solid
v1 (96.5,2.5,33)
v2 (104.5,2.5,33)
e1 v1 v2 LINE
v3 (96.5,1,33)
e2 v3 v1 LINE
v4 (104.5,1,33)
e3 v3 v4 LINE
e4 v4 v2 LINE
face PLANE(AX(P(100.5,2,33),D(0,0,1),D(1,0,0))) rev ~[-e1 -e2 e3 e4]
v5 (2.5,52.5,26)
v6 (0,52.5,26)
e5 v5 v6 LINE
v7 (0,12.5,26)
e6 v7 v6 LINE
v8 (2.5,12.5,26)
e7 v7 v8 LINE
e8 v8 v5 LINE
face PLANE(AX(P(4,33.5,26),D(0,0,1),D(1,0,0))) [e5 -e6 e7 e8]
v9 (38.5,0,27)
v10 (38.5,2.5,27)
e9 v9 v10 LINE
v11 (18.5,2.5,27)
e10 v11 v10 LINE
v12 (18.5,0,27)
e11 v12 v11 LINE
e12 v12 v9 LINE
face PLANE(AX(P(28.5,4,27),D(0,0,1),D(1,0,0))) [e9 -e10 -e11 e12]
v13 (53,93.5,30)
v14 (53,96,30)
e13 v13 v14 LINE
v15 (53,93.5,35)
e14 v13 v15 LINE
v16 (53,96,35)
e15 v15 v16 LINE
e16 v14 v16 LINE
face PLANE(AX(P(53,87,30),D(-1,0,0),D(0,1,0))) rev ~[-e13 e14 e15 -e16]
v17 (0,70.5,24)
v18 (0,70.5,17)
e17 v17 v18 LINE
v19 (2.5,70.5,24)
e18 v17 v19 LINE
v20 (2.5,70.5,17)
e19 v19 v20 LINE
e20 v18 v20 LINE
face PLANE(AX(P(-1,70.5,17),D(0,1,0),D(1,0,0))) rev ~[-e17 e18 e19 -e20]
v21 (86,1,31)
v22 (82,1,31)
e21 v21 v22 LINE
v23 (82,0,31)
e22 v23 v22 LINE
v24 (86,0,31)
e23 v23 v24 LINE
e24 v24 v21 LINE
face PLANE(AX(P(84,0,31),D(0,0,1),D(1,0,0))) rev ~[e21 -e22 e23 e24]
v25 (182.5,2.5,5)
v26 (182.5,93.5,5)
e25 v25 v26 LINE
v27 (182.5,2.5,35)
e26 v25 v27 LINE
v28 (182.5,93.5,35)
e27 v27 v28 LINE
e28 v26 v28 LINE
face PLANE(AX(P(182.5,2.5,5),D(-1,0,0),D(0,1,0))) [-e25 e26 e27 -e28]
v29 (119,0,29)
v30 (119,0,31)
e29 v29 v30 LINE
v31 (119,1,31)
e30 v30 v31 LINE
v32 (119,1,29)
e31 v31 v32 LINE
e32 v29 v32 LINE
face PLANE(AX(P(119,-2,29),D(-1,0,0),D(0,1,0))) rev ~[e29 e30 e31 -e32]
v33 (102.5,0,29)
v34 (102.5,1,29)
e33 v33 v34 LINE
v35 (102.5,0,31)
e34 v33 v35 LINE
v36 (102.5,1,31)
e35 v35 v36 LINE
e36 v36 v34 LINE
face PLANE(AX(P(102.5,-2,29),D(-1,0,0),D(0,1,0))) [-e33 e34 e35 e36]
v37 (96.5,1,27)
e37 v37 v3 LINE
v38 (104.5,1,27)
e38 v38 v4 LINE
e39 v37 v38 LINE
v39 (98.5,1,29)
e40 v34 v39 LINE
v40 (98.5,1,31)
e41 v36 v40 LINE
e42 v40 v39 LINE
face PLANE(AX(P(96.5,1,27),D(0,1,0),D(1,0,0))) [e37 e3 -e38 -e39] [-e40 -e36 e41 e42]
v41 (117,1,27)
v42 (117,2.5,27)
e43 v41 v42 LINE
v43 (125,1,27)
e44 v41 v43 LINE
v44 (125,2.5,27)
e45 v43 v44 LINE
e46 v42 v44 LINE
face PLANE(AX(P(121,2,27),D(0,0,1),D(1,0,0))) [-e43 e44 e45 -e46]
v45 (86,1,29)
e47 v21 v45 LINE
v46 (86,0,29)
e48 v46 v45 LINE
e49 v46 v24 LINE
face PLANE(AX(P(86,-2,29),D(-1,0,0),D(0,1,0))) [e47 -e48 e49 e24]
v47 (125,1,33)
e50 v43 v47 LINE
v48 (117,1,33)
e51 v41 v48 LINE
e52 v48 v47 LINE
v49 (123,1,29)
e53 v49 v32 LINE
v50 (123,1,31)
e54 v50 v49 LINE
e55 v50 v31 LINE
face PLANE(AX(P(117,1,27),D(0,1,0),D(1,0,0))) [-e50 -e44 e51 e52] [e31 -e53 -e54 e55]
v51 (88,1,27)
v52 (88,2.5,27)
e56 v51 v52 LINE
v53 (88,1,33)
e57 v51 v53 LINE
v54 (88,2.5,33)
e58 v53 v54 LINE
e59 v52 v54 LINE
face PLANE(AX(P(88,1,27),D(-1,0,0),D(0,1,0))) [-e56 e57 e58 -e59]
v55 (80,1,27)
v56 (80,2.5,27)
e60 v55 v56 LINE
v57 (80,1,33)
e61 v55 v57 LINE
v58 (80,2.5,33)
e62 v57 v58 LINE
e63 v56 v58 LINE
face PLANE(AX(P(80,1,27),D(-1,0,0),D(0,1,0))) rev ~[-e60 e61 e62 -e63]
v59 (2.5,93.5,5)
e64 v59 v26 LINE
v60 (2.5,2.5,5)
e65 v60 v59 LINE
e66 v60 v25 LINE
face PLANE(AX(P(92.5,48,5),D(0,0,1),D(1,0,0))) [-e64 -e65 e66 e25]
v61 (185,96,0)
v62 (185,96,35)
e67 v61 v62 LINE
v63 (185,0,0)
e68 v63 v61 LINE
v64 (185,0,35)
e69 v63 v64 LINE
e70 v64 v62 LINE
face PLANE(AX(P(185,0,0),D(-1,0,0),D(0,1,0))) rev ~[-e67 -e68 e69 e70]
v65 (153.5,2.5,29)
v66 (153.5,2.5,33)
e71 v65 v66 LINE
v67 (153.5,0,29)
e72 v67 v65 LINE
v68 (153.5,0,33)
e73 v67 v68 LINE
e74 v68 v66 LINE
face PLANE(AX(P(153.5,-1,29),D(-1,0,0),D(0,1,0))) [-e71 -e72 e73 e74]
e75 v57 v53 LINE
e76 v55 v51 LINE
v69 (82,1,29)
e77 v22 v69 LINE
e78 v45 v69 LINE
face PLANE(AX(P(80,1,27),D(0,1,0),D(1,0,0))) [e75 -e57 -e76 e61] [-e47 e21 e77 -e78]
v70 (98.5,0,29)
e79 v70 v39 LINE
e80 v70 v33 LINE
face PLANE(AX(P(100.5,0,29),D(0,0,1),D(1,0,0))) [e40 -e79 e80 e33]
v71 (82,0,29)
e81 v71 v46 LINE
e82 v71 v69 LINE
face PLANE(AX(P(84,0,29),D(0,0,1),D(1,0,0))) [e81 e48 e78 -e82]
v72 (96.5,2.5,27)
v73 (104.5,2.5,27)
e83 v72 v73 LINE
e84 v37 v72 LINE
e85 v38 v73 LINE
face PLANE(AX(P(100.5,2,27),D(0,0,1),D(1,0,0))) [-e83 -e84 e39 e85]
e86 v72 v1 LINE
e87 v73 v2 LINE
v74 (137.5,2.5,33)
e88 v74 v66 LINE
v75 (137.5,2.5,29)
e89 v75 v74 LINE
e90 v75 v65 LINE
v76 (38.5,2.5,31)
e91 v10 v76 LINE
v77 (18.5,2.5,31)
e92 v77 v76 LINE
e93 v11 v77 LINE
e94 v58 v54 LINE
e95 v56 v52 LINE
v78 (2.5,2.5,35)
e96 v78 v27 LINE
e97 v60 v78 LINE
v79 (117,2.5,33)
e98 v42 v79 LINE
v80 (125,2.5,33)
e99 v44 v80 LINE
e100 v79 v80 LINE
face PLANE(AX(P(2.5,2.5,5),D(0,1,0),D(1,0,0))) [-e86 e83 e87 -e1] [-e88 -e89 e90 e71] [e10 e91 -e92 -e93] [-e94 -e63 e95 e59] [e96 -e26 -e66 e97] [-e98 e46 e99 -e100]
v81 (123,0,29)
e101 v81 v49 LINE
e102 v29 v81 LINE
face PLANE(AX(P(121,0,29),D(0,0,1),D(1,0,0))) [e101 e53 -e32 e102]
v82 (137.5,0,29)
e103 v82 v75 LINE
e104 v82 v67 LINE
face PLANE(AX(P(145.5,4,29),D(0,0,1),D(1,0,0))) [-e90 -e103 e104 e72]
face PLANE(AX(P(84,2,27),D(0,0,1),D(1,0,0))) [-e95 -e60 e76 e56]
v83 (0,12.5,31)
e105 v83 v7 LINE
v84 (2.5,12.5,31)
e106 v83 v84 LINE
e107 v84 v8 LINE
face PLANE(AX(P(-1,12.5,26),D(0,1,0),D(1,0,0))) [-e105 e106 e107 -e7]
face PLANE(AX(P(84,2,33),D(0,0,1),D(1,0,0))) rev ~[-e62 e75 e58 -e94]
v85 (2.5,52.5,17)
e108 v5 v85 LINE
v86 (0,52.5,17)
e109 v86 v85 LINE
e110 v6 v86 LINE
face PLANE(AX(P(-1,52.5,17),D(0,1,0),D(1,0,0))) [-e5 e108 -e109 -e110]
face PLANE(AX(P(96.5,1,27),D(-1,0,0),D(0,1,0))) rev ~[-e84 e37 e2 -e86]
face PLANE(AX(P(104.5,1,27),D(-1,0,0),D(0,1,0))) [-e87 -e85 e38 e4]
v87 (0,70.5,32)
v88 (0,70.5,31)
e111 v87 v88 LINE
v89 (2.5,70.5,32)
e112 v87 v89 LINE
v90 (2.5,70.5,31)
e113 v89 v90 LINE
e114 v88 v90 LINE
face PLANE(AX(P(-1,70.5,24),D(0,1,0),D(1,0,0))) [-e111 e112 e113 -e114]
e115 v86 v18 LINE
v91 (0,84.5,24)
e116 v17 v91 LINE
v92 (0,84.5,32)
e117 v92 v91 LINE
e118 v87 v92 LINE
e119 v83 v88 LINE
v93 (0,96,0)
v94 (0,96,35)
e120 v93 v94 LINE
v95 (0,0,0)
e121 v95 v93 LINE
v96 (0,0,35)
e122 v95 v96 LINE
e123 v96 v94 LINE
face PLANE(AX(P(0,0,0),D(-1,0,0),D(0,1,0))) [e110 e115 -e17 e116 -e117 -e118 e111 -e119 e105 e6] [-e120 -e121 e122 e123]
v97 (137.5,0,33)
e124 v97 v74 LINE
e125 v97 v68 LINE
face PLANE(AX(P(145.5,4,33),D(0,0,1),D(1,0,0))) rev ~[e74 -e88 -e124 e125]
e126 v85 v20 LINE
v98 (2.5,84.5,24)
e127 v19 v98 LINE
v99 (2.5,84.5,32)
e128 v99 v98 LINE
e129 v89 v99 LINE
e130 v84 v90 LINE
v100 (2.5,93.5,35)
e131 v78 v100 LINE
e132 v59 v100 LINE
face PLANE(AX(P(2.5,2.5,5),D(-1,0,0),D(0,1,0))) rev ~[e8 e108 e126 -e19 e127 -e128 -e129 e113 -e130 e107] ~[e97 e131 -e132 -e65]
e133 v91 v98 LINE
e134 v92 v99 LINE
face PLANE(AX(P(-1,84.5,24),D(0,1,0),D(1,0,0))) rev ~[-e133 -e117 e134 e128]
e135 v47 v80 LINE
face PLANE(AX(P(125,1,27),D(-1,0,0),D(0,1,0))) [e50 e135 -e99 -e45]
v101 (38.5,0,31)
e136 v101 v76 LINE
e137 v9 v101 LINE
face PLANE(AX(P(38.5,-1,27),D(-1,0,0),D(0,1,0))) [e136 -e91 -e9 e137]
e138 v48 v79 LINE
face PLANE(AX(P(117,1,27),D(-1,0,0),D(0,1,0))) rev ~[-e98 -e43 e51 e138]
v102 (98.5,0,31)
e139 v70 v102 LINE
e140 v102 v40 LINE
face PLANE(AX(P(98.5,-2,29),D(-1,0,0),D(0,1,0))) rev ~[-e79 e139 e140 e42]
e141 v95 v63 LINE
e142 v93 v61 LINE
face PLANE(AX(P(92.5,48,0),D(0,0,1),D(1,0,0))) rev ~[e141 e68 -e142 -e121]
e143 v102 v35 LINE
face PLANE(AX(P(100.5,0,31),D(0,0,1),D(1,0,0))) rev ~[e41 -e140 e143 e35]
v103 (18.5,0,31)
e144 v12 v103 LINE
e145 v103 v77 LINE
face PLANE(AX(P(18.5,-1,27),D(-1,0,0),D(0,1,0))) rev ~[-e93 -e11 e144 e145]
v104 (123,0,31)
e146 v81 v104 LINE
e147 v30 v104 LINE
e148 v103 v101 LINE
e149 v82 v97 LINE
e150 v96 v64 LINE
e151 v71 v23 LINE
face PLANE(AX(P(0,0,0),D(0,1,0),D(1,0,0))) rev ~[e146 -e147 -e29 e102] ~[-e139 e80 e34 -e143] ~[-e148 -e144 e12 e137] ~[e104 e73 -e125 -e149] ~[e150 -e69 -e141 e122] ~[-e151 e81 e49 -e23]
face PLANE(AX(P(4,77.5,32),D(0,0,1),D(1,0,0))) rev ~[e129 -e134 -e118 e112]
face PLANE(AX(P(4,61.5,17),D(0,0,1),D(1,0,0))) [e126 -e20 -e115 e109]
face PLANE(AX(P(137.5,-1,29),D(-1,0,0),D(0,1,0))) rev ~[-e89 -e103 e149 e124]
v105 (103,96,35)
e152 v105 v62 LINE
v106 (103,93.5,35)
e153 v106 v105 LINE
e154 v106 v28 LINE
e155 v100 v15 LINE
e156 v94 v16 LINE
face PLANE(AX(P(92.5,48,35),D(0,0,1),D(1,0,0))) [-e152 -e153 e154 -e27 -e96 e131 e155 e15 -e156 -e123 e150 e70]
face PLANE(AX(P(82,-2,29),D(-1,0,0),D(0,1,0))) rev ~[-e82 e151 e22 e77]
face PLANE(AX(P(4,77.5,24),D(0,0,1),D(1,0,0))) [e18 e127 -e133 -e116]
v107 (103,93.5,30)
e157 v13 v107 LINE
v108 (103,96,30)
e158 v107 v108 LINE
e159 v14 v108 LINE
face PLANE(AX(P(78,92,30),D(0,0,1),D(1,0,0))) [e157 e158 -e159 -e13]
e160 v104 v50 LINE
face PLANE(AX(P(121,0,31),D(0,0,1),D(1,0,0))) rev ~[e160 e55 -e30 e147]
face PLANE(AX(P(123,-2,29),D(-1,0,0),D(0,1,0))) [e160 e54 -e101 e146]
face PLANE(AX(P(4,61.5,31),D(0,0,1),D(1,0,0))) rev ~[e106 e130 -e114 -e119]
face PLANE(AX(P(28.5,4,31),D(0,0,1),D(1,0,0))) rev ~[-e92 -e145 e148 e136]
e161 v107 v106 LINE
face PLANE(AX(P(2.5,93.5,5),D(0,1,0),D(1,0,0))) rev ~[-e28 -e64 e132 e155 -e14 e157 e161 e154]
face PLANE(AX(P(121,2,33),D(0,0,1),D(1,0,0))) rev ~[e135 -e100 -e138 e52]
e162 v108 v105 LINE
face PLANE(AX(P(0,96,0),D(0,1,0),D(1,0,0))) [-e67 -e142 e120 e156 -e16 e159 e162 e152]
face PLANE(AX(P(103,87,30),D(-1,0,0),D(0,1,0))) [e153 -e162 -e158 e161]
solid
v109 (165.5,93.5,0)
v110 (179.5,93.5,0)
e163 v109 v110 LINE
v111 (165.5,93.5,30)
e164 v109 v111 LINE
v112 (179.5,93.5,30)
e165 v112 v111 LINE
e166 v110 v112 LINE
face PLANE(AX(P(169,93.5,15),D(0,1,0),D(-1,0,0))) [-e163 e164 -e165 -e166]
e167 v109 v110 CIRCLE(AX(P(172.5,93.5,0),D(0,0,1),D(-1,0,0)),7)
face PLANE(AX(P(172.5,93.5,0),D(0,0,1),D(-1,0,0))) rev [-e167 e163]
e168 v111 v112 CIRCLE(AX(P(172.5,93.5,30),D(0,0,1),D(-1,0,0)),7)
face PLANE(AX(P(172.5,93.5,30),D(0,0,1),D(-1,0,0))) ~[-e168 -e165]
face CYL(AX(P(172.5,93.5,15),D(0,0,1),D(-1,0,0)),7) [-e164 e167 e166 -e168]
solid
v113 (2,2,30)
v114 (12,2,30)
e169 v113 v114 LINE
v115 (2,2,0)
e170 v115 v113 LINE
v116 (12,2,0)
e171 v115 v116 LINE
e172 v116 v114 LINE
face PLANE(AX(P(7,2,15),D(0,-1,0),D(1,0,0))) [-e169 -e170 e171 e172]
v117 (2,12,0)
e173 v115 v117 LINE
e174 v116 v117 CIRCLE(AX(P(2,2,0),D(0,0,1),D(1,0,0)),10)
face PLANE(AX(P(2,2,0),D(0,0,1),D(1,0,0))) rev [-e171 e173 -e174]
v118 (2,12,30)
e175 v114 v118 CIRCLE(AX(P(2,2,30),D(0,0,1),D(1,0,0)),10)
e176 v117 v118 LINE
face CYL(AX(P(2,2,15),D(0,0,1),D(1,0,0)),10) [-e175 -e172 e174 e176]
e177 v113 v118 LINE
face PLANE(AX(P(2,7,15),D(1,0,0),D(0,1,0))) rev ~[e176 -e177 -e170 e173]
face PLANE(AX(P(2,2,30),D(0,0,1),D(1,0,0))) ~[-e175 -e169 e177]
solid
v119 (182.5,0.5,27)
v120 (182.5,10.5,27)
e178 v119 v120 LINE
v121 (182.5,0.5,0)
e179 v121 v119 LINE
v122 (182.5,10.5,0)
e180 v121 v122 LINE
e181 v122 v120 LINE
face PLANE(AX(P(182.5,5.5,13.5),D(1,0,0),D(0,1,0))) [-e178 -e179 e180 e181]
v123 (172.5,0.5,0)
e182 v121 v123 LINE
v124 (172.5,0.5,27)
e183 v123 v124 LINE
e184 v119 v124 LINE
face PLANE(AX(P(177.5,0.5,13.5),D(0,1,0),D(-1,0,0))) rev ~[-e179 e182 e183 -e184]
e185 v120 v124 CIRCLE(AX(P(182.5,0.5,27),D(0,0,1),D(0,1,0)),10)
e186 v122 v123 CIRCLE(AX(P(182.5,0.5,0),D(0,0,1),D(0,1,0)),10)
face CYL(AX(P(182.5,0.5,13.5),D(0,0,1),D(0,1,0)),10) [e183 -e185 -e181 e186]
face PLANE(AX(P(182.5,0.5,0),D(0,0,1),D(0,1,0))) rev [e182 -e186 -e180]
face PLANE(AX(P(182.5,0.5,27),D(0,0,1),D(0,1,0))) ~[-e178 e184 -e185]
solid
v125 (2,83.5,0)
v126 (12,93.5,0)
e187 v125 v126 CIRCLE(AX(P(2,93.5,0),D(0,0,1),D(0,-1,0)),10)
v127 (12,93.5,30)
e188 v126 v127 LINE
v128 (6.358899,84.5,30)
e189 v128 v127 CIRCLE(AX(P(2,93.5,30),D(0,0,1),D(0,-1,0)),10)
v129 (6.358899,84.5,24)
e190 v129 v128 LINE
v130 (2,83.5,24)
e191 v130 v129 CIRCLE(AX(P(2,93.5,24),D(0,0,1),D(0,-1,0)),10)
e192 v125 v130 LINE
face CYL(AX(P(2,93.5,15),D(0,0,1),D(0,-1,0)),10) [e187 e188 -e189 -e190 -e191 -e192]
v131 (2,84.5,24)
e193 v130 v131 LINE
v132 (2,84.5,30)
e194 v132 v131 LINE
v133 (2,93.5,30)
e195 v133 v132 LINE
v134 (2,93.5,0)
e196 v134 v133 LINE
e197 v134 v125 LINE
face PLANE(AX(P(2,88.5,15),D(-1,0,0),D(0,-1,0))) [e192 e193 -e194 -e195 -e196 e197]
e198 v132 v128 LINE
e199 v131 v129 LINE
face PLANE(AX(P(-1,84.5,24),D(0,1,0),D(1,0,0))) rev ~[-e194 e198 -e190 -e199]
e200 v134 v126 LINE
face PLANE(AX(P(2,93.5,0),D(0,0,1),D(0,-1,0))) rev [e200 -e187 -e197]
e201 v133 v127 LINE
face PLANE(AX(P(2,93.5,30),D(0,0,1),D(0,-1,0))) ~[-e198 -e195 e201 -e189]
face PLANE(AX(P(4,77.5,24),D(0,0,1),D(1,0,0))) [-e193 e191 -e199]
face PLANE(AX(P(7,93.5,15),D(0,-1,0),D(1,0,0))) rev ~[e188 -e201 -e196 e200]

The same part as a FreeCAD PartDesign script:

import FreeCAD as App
import Part
import Sketcher
from FreeCAD import Vector
Q = App.Units.Quantity


def add_polygon(sketch, points):
    """Adds a closed chain of lines whose ends are joined by coincident constraints."""
    first, n = sketch.GeometryCount, len(points)
    for a, b in zip(points, points[1:] + points[:1]):
        sketch.addGeometry(Part.LineSegment(App.Vector(*a, 0), App.Vector(*b, 0)), False)
    for i in range(n):
        sketch.addConstraint(Sketcher.Constraint("Coincident", first + i, 2, first + (i + 1) % n, 1))

doc = App.newDocument("Part")
body = doc.addObject("PartDesign::Body", "Body")

sketch1 = doc.addObject("Sketcher::SketchObject", "Sketch")
body.addObject(sketch1)
sketch1.AttachmentSupport = (doc.XZ_Plane, [""])
sketch1.MapMode = "FlatFace"
sketch1.AttachmentOffset = App.Placement(Vector(0, 0, -2), App.Rotation())
add_polygon(sketch1, [(2, 30), (2, 0), (12, 0), (12, 30)])
sketch1.addGeometry(Part.LineSegment(Vector(2, 0, 0), Vector(2, 30, 0)), True)
sketch1.addConstraint([
    Sketcher.Constraint("Vertical", 0),
    Sketcher.Constraint("Horizontal", 1),
    Sketcher.Constraint("Vertical", 2),
    Sketcher.Constraint("Horizontal", 3),
    Sketcher.Constraint("Vertical", 4),
    Sketcher.Constraint("Coincident", 4, 1, 0, 2),
    Sketcher.Constraint("PointOnObject", 0, 2, -1),
    Sketcher.Constraint("Horizontal", 2, 2, 4, 2),
    Sketcher.Constraint("DistanceX", 1, 1, 1, 2, Q("10 mm")),
    Sketcher.Constraint("DistanceY", 0, 2, 0, 1, Q("30 mm")),
    Sketcher.Constraint("DistanceX", -1, 1, 0, 2, Q("2 mm")),
])
revolution = doc.addObject("PartDesign::Revolution", "Revolution")
body.addObject(revolution)
revolution.Profile = sketch1
revolution.ReferenceAxis = (sketch1, ["Axis0"])
revolution.Angle = 90
body2 = doc.addObject("PartDesign::Body", "Body001")

sketch2 = doc.addObject("Sketcher::SketchObject", "Sketch001")
body2.addObject(sketch2)
sketch2.AttachmentSupport = (doc.getObject("XZ_Plane001"), [""])
sketch2.MapMode = "FlatFace"
sketch2.AttachmentOffset = App.Placement(Vector(0, 0, -93.5), App.Rotation())
add_polygon(sketch2, [(172, 30), (172, 0), (166, 0), (166, 30)])
sketch2.addGeometry(Part.LineSegment(Vector(172, 0, 0), Vector(172, 30, 0)), True)
sketch2.addConstraint([
    Sketcher.Constraint("Vertical", 0),
    Sketcher.Constraint("Horizontal", 1),
    Sketcher.Constraint("Vertical", 2),
    Sketcher.Constraint("Horizontal", 3),
    Sketcher.Constraint("Vertical", 4),
    Sketcher.Constraint("Coincident", 4, 1, 0, 2),
    Sketcher.Constraint("PointOnObject", 0, 2, -1),
    Sketcher.Constraint("Horizontal", 2, 2, 4, 2),
    Sketcher.Constraint("DistanceX", 1, 2, 1, 1, Q("7 mm")),
    Sketcher.Constraint("DistanceY", 0, 2, 0, 1, Q("30 mm")),
    Sketcher.Constraint("DistanceX", -1, 1, 0, 2, Q("172.5 mm")),
])
revolution2 = doc.addObject("PartDesign::Revolution", "Revolution001")
body2.addObject(revolution2)
revolution2.Profile = sketch2
revolution2.ReferenceAxis = (sketch2, ["Axis0"])
revolution2.Angle = 180
body3 = doc.addObject("PartDesign::Body", "Body002")

sketch3 = doc.addObject("Sketcher::SketchObject", "Sketch002")
body3.addObject(sketch3)
sketch3.AttachmentSupport = (doc.getObject("XZ_Plane002"), [""])
sketch3.MapMode = "FlatFace"
add_polygon(sketch3, [(0, 27), (0, 0), (10, 0), (10, 27)])
sketch3.addConstraint([
    Sketcher.Constraint("Vertical", 0),
    Sketcher.Constraint("Horizontal", 1),
    Sketcher.Constraint("Vertical", 2),
    Sketcher.Constraint("Horizontal", 3),
    Sketcher.Constraint("Coincident", 0, 2, -1, 1),
    Sketcher.Constraint("DistanceX", 1, 1, 1, 2, Q("10 mm")),
    Sketcher.Constraint("DistanceY", 0, 2, 0, 1, Q("27 mm")),
])
revolution3 = doc.addObject("PartDesign::Revolution", "Revolution002")
body3.addObject(revolution3)
revolution3.Profile = sketch3
revolution3.ReferenceAxis = (sketch3, ["V_Axis"])
revolution3.Angle = 90
body4 = doc.addObject("PartDesign::Body", "Body003")
doc.recompute()

body3.Placement = App.Placement(Vector(182.5, 0.5, 0), App.Rotation(Vector(0, 0, 1), 90))
boolean = doc.addObject("PartDesign::Boolean", "Boolean")
body4.addObject(boolean)
boolean.Type = "Fuse"
boolean.addObjects([body3])
body5 = doc.addObject("PartDesign::Body", "Body004")

sketch4 = doc.addObject("Sketcher::SketchObject", "Sketch003")
body5.addObject(sketch4)
sketch4.AttachmentSupport = (doc.getObject("XY_Plane004"), [""])
sketch4.MapMode = "FlatFace"
sketch4.AttachmentOffset = App.Placement(Vector(0, 0, 27), App.Rotation())
add_polygon(sketch4, [(96.5, 3), (96.5, 1), (104.5, 1), (104.5, 3)])
sketch4.addConstraint([
    Sketcher.Constraint("Vertical", 0),
    Sketcher.Constraint("Horizontal", 1),
    Sketcher.Constraint("Vertical", 2),
    Sketcher.Constraint("Horizontal", 3),
    Sketcher.Constraint("DistanceX", 1, 1, 1, 2, Q("8 mm")),
    Sketcher.Constraint("DistanceY", 0, 2, 0, 1, Q("2 mm")),
    Sketcher.Constraint("DistanceY", -1, 1, 0, 2, Q("1 mm")),
    Sketcher.Constraint("DistanceX", -1, 1, 0, 2, Q("96.5 mm")),
])
pad1 = doc.addObject("PartDesign::Pad", "Pad")
body5.addObject(pad1)
pad1.Profile = sketch4
pad1.Length = 6
body6 = doc.addObject("PartDesign::Body", "Body005")

sketch5 = doc.addObject("Sketcher::SketchObject", "Sketch004")
body6.addObject(sketch5)
sketch5.AttachmentSupport = (doc.getObject("XY_Plane005"), [""])
sketch5.MapMode = "FlatFace"
sketch5.AttachmentOffset = App.Placement(Vector(0, 0, 27), App.Rotation())
add_polygon(sketch5, [(80, 3), (80, 1), (88, 1), (88, 3)])
sketch5.addConstraint([
    Sketcher.Constraint("Vertical", 0),
    Sketcher.Constraint("Horizontal", 1),
    Sketcher.Constraint("Vertical", 2),
    Sketcher.Constraint("Horizontal", 3),
    Sketcher.Constraint("DistanceX", 1, 1, 1, 2, Q("8 mm")),
    Sketcher.Constraint("DistanceY", 0, 2, 0, 1, Q("2 mm")),
    Sketcher.Constraint("DistanceX", -1, 1, 0, 2, Q("80 mm")),
    Sketcher.Constraint("DistanceY", -1, 1, 0, 2, Q("1 mm")),
])
pad2 = doc.addObject("PartDesign::Pad", "Pad001")
body6.addObject(pad2)
pad2.Profile = sketch5
pad2.Length = 6
body7 = doc.addObject("PartDesign::Body", "Body006")
body7.AllowCompound = True

sketch6 = doc.addObject("Sketcher::SketchObject", "Sketch005")
body7.addObject(sketch6)
sketch6.AttachmentSupport = (doc.getObject("XY_Plane006"), [""])
sketch6.MapMode = "FlatFace"
sketch6.AttachmentOffset = App.Placement(Vector(0, 0, 27), App.Rotation())
add_polygon(sketch6, [(117, 3), (117, 1), (125, 1), (125, 3)])
sketch6.addConstraint([
    Sketcher.Constraint("Vertical", 0),
    Sketcher.Constraint("Horizontal", 1),
    Sketcher.Constraint("Vertical", 2),
    Sketcher.Constraint("Horizontal", 3),
    Sketcher.Constraint("DistanceX", 1, 1, 1, 2, Q("8 mm")),
    Sketcher.Constraint("DistanceY", 0, 2, 0, 1, Q("2 mm")),
    Sketcher.Constraint("DistanceX", -1, 1, 0, 2, Q("117 mm")),
    Sketcher.Constraint("DistanceY", -1, 1, 0, 2, Q("1 mm")),
])
pad3 = doc.addObject("PartDesign::Pad", "Pad002")
body7.addObject(pad3)
pad3.Profile = sketch6
pad3.Length = 6
doc.recompute()

boolean2 = doc.addObject("PartDesign::Boolean", "Boolean001")
body7.addObject(boolean2)
boolean2.Type = "Fuse"
boolean2.addObjects([body5])
doc.recompute()

boolean3 = doc.addObject("PartDesign::Boolean", "Boolean002")
body7.addObject(boolean3)
boolean3.Type = "Fuse"
boolean3.addObjects([body6])
body8 = doc.addObject("PartDesign::Body", "Body007")

sketch7 = doc.addObject("Sketcher::SketchObject", "Sketch006")
body8.addObject(sketch7)
sketch7.AttachmentSupport = (doc.getObject("XY_Plane007"), [""])
sketch7.MapMode = "FlatFace"
sketch7.AttachmentOffset = App.Placement(Vector(0, 0, 29), App.Rotation())
add_polygon(sketch7, [(98.5, 2), (98.5, -2), (102.5, -2), (102.5, 2)])
sketch7.addConstraint([
    Sketcher.Constraint("Vertical", 0),
    Sketcher.Constraint("Horizontal", 1),
    Sketcher.Constraint("Vertical", 2),
    Sketcher.Constraint("Horizontal", 3),
    Sketcher.Constraint("Equal", 3, 0),
    Sketcher.Constraint("DistanceX", 1, 1, 1, 2, Q("4 mm")),
    Sketcher.Constraint("DistanceY", 0, 2, -1, 1, Q("2 mm")),
    Sketcher.Constraint("DistanceX", -1, 1, 0, 2, Q("98.5 mm")),
])
pad4 = doc.addObject("PartDesign::Pad", "Pad003")
body8.addObject(pad4)
pad4.Profile = sketch7
pad4.Length = 2
body9 = doc.addObject("PartDesign::Body", "Body008")

sketch8 = doc.addObject("Sketcher::SketchObject", "Sketch007")
body9.addObject(sketch8)
sketch8.AttachmentSupport = (doc.getObject("XY_Plane008"), [""])
sketch8.MapMode = "FlatFace"
sketch8.AttachmentOffset = App.Placement(Vector(0, 0, 29), App.Rotation())
add_polygon(sketch8, [(119, 2), (119, -2), (123, -2), (123, 2)])
sketch8.addConstraint([
    Sketcher.Constraint("Vertical", 0),
    Sketcher.Constraint("Horizontal", 1),
    Sketcher.Constraint("Vertical", 2),
    Sketcher.Constraint("Horizontal", 3),
    Sketcher.Constraint("Equal", 3, 0),
    Sketcher.Constraint("DistanceX", 1, 1, 1, 2, Q("4 mm")),
    Sketcher.Constraint("DistanceX", -1, 1, 0, 2, Q("119 mm")),
    Sketcher.Constraint("DistanceY", 0, 2, -1, 1, Q("2 mm")),
])
pad5 = doc.addObject("PartDesign::Pad", "Pad004")
body9.addObject(pad5)
pad5.Profile = sketch8
pad5.Length = 2
body10 = doc.addObject("PartDesign::Body", "Body009")

sketch9 = doc.addObject("Sketcher::SketchObject", "Sketch008")
body10.addObject(sketch9)
sketch9.AttachmentSupport = (doc.getObject("XY_Plane009"), [""])
sketch9.MapMode = "FlatFace"
sketch9.AttachmentOffset = App.Placement(Vector(0, 0, 29), App.Rotation())
add_polygon(sketch9, [(82, 2), (82, -2), (86, -2), (86, 2)])
sketch9.addConstraint([
    Sketcher.Constraint("Vertical", 0),
    Sketcher.Constraint("Horizontal", 1),
    Sketcher.Constraint("Vertical", 2),
    Sketcher.Constraint("Horizontal", 3),
    Sketcher.Constraint("Equal", 3, 0),
    Sketcher.Constraint("DistanceX", 1, 1, 1, 2, Q("4 mm")),
    Sketcher.Constraint("DistanceX", -1, 1, 0, 2, Q("82 mm")),
    Sketcher.Constraint("DistanceY", 0, 2, -1, 1, Q("2 mm")),
])
pad6 = doc.addObject("PartDesign::Pad", "Pad005")
body10.addObject(pad6)
pad6.Profile = sketch9
pad6.Length = 2
body11 = doc.addObject("PartDesign::Body", "Body010")

sketch10 = doc.addObject("Sketcher::SketchObject", "Sketch009")
body11.addObject(sketch10)
sketch10.AttachmentSupport = (doc.getObject("XY_Plane010"), [""])
sketch10.MapMode = "FlatFace"
sketch10.AttachmentOffset = App.Placement(Vector(0, 0, 27), App.Rotation())
add_polygon(sketch10, [(18, 9), (18, -1), (38, -1), (38, 9)])
sketch10.addConstraint([
    Sketcher.Constraint("Vertical", 0),
    Sketcher.Constraint("Horizontal", 1),
    Sketcher.Constraint("Vertical", 2),
    Sketcher.Constraint("Horizontal", 3),
    Sketcher.Constraint("DistanceX", 1, 1, 1, 2, Q("20 mm")),
    Sketcher.Constraint("DistanceY", 0, 2, 0, 1, Q("10 mm")),
    Sketcher.Constraint("DistanceY", 0, 2, -1, 1, Q("1 mm")),
    Sketcher.Constraint("DistanceX", -1, 1, 0, 2, Q("18.5 mm")),
])
pad7 = doc.addObject("PartDesign::Pad", "Pad006")
body11.addObject(pad7)
pad7.Profile = sketch10
pad7.Length = 4
body12 = doc.addObject("PartDesign::Body", "Body011")

sketch11 = doc.addObject("Sketcher::SketchObject", "Sketch010")
body12.addObject(sketch11)
sketch11.AttachmentSupport = (doc.getObject("XY_Plane011"), [""])
sketch11.MapMode = "FlatFace"
sketch11.AttachmentOffset = App.Placement(Vector(0, 0, 30), App.Rotation())
add_polygon(sketch11, [(53, 97), (53, 87), (103, 87), (103, 97)])
sketch11.addConstraint([
    Sketcher.Constraint("Vertical", 0),
    Sketcher.Constraint("Horizontal", 1),
    Sketcher.Constraint("Vertical", 2),
    Sketcher.Constraint("Horizontal", 3),
    Sketcher.Constraint("DistanceX", 1, 1, 1, 2, Q("50 mm")),
    Sketcher.Constraint("DistanceY", 0, 2, 0, 1, Q("10 mm")),
    Sketcher.Constraint("DistanceX", -1, 1, 0, 2, Q("53 mm")),
    Sketcher.Constraint("DistanceY", -1, 1, 0, 2, Q("87 mm")),
])
pad8 = doc.addObject("PartDesign::Pad", "Pad007")
body12.addObject(pad8)
pad8.Profile = sketch11
pad8.Length = 5
body13 = doc.addObject("PartDesign::Body", "Body012")

sketch12 = doc.addObject("Sketcher::SketchObject", "Sketch011")
body13.addObject(sketch12)
sketch12.AttachmentSupport = (doc.getObject("XY_Plane012"), [""])
sketch12.MapMode = "FlatFace"
sketch12.AttachmentOffset = App.Placement(Vector(0, 0, 26), App.Rotation())
add_polygon(sketch12, [(-1, 54), (-1, 12), (9, 12), (9, 54)])
sketch12.addConstraint([
    Sketcher.Constraint("Vertical", 0),
    Sketcher.Constraint("Horizontal", 1),
    Sketcher.Constraint("Vertical", 2),
    Sketcher.Constraint("Horizontal", 3),
    Sketcher.Constraint("DistanceX", 1, 1, 1, 2, Q("10 mm")),
    Sketcher.Constraint("DistanceY", 0, 2, 0, 1, Q("42 mm")),
    Sketcher.Constraint("DistanceX", 0, 2, -1, 1, Q("1 mm")),
    Sketcher.Constraint("DistanceY", -1, 1, 0, 2, Q("12.5 mm")),
])
pad9 = doc.addObject("PartDesign::Pad", "Pad008")
body13.addObject(pad9)
pad9.Profile = sketch12
pad9.Length = 5
body14 = doc.addObject("PartDesign::Body", "Body013")

sketch13 = doc.addObject("Sketcher::SketchObject", "Sketch012")
body14.addObject(sketch13)
sketch13.AttachmentSupport = (doc.getObject("XY_Plane013"), [""])
sketch13.MapMode = "FlatFace"
sketch13.AttachmentOffset = App.Placement(Vector(0, 0, 17), App.Rotation())
add_polygon(sketch13, [(-1, 70), (-1, 52), (9, 52), (9, 70)])
sketch13.addConstraint([
    Sketcher.Constraint("Vertical", 0),
    Sketcher.Constraint("Horizontal", 1),
    Sketcher.Constraint("Vertical", 2),
    Sketcher.Constraint("Horizontal", 3),
    Sketcher.Constraint("DistanceX", 1, 1, 1, 2, Q("10 mm")),
    Sketcher.Constraint("DistanceY", 0, 2, 0, 1, Q("18 mm")),
    Sketcher.Constraint("DistanceX", 0, 2, -1, 1, Q("1 mm")),
    Sketcher.Constraint("DistanceY", -1, 1, 0, 2, Q("52.5 mm")),
])
pad10 = doc.addObject("PartDesign::Pad", "Pad009")
body14.addObject(pad10)
pad10.Profile = sketch13
pad10.Length = 14
body15 = doc.addObject("PartDesign::Body", "Body014")

sketch14 = doc.addObject("Sketcher::SketchObject", "Sketch013")
body15.addObject(sketch14)
sketch14.AttachmentSupport = (doc.getObject("XY_Plane014"), [""])
sketch14.MapMode = "FlatFace"
sketch14.AttachmentOffset = App.Placement(Vector(0, 0, 24), App.Rotation())
add_polygon(sketch14, [(-1, 84), (-1, 70), (9, 70), (9, 84)])
sketch14.addConstraint([
    Sketcher.Constraint("Vertical", 0),
    Sketcher.Constraint("Horizontal", 1),
    Sketcher.Constraint("Vertical", 2),
    Sketcher.Constraint("Horizontal", 3),
    Sketcher.Constraint("DistanceX", 1, 1, 1, 2, Q("10 mm")),
    Sketcher.Constraint("DistanceY", 0, 2, 0, 1, Q("14 mm")),
    Sketcher.Constraint("DistanceX", 0, 2, -1, 1, Q("1 mm")),
    Sketcher.Constraint("DistanceY", -1, 1, 0, 2, Q("70.5 mm")),
])
pad11 = doc.addObject("PartDesign::Pad", "Pad010")
body15.addObject(pad11)
pad11.Profile = sketch14
pad11.Length = 8
body16 = doc.addObject("PartDesign::Body", "Body015")
body16.AllowCompound = True

sketch15 = doc.addObject("Sketcher::SketchObject", "Sketch014")
body16.addObject(sketch15)
sketch15.AttachmentSupport = (doc.getObject("XY_Plane015"), [""])
sketch15.MapMode = "FlatFace"
sketch15.AttachmentOffset = App.Placement(Vector(0, 0, 29), App.Rotation())
add_polygon(sketch15, [(138, 9), (138, -1), (154, -1), (154, 9)])
sketch15.addConstraint([
    Sketcher.Constraint("Vertical", 0),
    Sketcher.Constraint("Horizontal", 1),
    Sketcher.Constraint("Vertical", 2),
    Sketcher.Constraint("Horizontal", 3),
    Sketcher.Constraint("DistanceX", 1, 1, 1, 2, Q("16 mm")),
    Sketcher.Constraint("DistanceY", 0, 2, 0, 1, Q("10 mm")),
    Sketcher.Constraint("DistanceY", 0, 2, -1, 1, Q("1 mm")),
    Sketcher.Constraint("DistanceX", -1, 1, 0, 2, Q("137.5 mm")),
])
pad12 = doc.addObject("PartDesign::Pad", "Pad011")
body16.addObject(pad12)
pad12.Profile = sketch15
pad12.Length = 4
doc.recompute()

boolean4 = doc.addObject("PartDesign::Boolean", "Boolean003")
body16.addObject(boolean4)
boolean4.Type = "Fuse"
boolean4.addObjects([body8])
doc.recompute()

boolean5 = doc.addObject("PartDesign::Boolean", "Boolean004")
body16.addObject(boolean5)
boolean5.Type = "Fuse"
boolean5.addObjects([body9])
doc.recompute()

boolean6 = doc.addObject("PartDesign::Boolean", "Boolean005")
body16.addObject(boolean6)
boolean6.Type = "Fuse"
boolean6.addObjects([body10])
doc.recompute()

boolean7 = doc.addObject("PartDesign::Boolean", "Boolean006")
body16.addObject(boolean7)
boolean7.Type = "Fuse"
boolean7.addObjects([body11])
doc.recompute()

boolean8 = doc.addObject("PartDesign::Boolean", "Boolean007")
body16.addObject(boolean8)
boolean8.Type = "Fuse"
boolean8.addObjects([body12])
doc.recompute()

boolean9 = doc.addObject("PartDesign::Boolean", "Boolean008")
body16.addObject(boolean9)
boolean9.Type = "Fuse"
boolean9.addObjects([body13])
doc.recompute()

boolean10 = doc.addObject("PartDesign::Boolean", "Boolean009")
body16.addObject(boolean10)
boolean10.Type = "Fuse"
boolean10.addObjects([body14])
doc.recompute()

body17 = doc.addObject("PartDesign::Body", "Body016")
body17.BaseFeature = body15
boolean11 = doc.addObject("PartDesign::Boolean", "Boolean010")
body16.addObject(boolean11)
boolean11.Type = "Fuse"
boolean11.addObjects([body17])
doc.recompute()
body18 = doc.addObject("PartDesign::Body", "Body017")

sketch16 = doc.addObject("Sketcher::SketchObject", "Sketch015")
body18.addObject(sketch16)
sketch16.AttachmentSupport = (doc.getObject("XY_Plane017"), [""])
sketch16.MapMode = "FlatFace"
sketch16.AttachmentOffset = App.Placement(Vector(0, 0, 5), App.Rotation())
add_polygon(sketch16, [(2, 94), (2, 2), (182, 2), (182, 94)])
sketch16.addConstraint([
    Sketcher.Constraint("Vertical", 0),
    Sketcher.Constraint("Horizontal", 1),
    Sketcher.Constraint("Vertical", 2),
    Sketcher.Constraint("Horizontal", 3),
    Sketcher.Constraint("DistanceX", 1, 1, 1, 2, Q("180 mm")),
    Sketcher.Constraint("DistanceY", 0, 2, 0, 1, Q("91 mm")),
    Sketcher.Constraint("DistanceX", -1, 1, 0, 2, Q("2.5 mm")),
    Sketcher.Constraint("DistanceY", -1, 1, 0, 2, Q("2.5 mm")),
])
pad13 = doc.addObject("PartDesign::Pad", "Pad012")
body18.addObject(pad13)
pad13.Profile = sketch16
pad13.Length = 30
body19 = doc.addObject("PartDesign::Body", "Body018")

sketch17 = doc.addObject("Sketcher::SketchObject", "Sketch016")
body19.addObject(sketch17)
sketch17.AttachmentSupport = (doc.getObject("XY_Plane018"), [""])
sketch17.MapMode = "FlatFace"
add_polygon(sketch17, [(0, 96), (0, 0), (185, 0), (185, 96)])
sketch17.addConstraint([
    Sketcher.Constraint("Vertical", 0),
    Sketcher.Constraint("Horizontal", 1),
    Sketcher.Constraint("Vertical", 2),
    Sketcher.Constraint("Horizontal", 3),
    Sketcher.Constraint("Coincident", 0, 2, -1, 1),
    Sketcher.Constraint("DistanceX", 1, 1, 1, 2, Q("185 mm")),
    Sketcher.Constraint("DistanceY", 0, 2, 0, 1, Q("96 mm")),
])
pad14 = doc.addObject("PartDesign::Pad", "Pad013")
body19.addObject(pad14)
pad14.Profile = sketch17
pad14.Length = 35
doc.recompute()

boolean12 = doc.addObject("PartDesign::Boolean", "Boolean011")
body19.addObject(boolean12)
boolean12.Type = "Cut"
boolean12.addObjects([body18])
doc.recompute()

boolean13 = doc.addObject("PartDesign::Boolean", "Boolean012")
body19.addObject(boolean13)
boolean13.Type = "Cut"
boolean13.addObjects([body16])
doc.recompute()

boolean14 = doc.addObject("PartDesign::Boolean", "Boolean013")
body19.addObject(boolean14)
boolean14.Type = "Cut"
boolean14.addObjects([body7])
body20 = doc.addObject("PartDesign::Body", "Body019")

sketch18 = doc.addObject("Sketcher::SketchObject", "Sketch017")
body20.addObject(sketch18)
sketch18.AttachmentSupport = (doc.getObject("XZ_Plane019"), [""])
sketch18.MapMode = "FlatFace"
add_polygon(sketch18, [(0, 30), (0, 0), (10, 0), (10, 30)])
sketch18.addConstraint([
    Sketcher.Constraint("Vertical", 0),
    Sketcher.Constraint("Horizontal", 1),
    Sketcher.Constraint("Vertical", 2),
    Sketcher.Constraint("Horizontal", 3),
    Sketcher.Constraint("Coincident", 0, 2, -1, 1),
    Sketcher.Constraint("DistanceX", 1, 1, 1, 2, Q("10 mm")),
    Sketcher.Constraint("DistanceY", 0, 2, 0, 1, Q("30 mm")),
])
revolution4 = doc.addObject("PartDesign::Revolution", "Revolution003")
body20.addObject(revolution4)
revolution4.Profile = sketch18
revolution4.ReferenceAxis = (sketch18, ["V_Axis"])
revolution4.Angle = 90
body21 = doc.addObject("PartDesign::Body", "Body020")
doc.recompute()

body20.Placement = App.Placement(Vector(2, 93.5, 0), App.Rotation(Vector(0, 0, 1), 270))
boolean15 = doc.addObject("PartDesign::Boolean", "Boolean014")
body21.addObject(boolean15)
boolean15.Type = "Fuse"
boolean15.addObjects([body20])
doc.recompute()

boolean16 = doc.addObject("PartDesign::Boolean", "Boolean015")
body21.addObject(boolean16)
boolean16.Type = "Cut"
boolean16.addObjects([body15])

doc.recompute()
